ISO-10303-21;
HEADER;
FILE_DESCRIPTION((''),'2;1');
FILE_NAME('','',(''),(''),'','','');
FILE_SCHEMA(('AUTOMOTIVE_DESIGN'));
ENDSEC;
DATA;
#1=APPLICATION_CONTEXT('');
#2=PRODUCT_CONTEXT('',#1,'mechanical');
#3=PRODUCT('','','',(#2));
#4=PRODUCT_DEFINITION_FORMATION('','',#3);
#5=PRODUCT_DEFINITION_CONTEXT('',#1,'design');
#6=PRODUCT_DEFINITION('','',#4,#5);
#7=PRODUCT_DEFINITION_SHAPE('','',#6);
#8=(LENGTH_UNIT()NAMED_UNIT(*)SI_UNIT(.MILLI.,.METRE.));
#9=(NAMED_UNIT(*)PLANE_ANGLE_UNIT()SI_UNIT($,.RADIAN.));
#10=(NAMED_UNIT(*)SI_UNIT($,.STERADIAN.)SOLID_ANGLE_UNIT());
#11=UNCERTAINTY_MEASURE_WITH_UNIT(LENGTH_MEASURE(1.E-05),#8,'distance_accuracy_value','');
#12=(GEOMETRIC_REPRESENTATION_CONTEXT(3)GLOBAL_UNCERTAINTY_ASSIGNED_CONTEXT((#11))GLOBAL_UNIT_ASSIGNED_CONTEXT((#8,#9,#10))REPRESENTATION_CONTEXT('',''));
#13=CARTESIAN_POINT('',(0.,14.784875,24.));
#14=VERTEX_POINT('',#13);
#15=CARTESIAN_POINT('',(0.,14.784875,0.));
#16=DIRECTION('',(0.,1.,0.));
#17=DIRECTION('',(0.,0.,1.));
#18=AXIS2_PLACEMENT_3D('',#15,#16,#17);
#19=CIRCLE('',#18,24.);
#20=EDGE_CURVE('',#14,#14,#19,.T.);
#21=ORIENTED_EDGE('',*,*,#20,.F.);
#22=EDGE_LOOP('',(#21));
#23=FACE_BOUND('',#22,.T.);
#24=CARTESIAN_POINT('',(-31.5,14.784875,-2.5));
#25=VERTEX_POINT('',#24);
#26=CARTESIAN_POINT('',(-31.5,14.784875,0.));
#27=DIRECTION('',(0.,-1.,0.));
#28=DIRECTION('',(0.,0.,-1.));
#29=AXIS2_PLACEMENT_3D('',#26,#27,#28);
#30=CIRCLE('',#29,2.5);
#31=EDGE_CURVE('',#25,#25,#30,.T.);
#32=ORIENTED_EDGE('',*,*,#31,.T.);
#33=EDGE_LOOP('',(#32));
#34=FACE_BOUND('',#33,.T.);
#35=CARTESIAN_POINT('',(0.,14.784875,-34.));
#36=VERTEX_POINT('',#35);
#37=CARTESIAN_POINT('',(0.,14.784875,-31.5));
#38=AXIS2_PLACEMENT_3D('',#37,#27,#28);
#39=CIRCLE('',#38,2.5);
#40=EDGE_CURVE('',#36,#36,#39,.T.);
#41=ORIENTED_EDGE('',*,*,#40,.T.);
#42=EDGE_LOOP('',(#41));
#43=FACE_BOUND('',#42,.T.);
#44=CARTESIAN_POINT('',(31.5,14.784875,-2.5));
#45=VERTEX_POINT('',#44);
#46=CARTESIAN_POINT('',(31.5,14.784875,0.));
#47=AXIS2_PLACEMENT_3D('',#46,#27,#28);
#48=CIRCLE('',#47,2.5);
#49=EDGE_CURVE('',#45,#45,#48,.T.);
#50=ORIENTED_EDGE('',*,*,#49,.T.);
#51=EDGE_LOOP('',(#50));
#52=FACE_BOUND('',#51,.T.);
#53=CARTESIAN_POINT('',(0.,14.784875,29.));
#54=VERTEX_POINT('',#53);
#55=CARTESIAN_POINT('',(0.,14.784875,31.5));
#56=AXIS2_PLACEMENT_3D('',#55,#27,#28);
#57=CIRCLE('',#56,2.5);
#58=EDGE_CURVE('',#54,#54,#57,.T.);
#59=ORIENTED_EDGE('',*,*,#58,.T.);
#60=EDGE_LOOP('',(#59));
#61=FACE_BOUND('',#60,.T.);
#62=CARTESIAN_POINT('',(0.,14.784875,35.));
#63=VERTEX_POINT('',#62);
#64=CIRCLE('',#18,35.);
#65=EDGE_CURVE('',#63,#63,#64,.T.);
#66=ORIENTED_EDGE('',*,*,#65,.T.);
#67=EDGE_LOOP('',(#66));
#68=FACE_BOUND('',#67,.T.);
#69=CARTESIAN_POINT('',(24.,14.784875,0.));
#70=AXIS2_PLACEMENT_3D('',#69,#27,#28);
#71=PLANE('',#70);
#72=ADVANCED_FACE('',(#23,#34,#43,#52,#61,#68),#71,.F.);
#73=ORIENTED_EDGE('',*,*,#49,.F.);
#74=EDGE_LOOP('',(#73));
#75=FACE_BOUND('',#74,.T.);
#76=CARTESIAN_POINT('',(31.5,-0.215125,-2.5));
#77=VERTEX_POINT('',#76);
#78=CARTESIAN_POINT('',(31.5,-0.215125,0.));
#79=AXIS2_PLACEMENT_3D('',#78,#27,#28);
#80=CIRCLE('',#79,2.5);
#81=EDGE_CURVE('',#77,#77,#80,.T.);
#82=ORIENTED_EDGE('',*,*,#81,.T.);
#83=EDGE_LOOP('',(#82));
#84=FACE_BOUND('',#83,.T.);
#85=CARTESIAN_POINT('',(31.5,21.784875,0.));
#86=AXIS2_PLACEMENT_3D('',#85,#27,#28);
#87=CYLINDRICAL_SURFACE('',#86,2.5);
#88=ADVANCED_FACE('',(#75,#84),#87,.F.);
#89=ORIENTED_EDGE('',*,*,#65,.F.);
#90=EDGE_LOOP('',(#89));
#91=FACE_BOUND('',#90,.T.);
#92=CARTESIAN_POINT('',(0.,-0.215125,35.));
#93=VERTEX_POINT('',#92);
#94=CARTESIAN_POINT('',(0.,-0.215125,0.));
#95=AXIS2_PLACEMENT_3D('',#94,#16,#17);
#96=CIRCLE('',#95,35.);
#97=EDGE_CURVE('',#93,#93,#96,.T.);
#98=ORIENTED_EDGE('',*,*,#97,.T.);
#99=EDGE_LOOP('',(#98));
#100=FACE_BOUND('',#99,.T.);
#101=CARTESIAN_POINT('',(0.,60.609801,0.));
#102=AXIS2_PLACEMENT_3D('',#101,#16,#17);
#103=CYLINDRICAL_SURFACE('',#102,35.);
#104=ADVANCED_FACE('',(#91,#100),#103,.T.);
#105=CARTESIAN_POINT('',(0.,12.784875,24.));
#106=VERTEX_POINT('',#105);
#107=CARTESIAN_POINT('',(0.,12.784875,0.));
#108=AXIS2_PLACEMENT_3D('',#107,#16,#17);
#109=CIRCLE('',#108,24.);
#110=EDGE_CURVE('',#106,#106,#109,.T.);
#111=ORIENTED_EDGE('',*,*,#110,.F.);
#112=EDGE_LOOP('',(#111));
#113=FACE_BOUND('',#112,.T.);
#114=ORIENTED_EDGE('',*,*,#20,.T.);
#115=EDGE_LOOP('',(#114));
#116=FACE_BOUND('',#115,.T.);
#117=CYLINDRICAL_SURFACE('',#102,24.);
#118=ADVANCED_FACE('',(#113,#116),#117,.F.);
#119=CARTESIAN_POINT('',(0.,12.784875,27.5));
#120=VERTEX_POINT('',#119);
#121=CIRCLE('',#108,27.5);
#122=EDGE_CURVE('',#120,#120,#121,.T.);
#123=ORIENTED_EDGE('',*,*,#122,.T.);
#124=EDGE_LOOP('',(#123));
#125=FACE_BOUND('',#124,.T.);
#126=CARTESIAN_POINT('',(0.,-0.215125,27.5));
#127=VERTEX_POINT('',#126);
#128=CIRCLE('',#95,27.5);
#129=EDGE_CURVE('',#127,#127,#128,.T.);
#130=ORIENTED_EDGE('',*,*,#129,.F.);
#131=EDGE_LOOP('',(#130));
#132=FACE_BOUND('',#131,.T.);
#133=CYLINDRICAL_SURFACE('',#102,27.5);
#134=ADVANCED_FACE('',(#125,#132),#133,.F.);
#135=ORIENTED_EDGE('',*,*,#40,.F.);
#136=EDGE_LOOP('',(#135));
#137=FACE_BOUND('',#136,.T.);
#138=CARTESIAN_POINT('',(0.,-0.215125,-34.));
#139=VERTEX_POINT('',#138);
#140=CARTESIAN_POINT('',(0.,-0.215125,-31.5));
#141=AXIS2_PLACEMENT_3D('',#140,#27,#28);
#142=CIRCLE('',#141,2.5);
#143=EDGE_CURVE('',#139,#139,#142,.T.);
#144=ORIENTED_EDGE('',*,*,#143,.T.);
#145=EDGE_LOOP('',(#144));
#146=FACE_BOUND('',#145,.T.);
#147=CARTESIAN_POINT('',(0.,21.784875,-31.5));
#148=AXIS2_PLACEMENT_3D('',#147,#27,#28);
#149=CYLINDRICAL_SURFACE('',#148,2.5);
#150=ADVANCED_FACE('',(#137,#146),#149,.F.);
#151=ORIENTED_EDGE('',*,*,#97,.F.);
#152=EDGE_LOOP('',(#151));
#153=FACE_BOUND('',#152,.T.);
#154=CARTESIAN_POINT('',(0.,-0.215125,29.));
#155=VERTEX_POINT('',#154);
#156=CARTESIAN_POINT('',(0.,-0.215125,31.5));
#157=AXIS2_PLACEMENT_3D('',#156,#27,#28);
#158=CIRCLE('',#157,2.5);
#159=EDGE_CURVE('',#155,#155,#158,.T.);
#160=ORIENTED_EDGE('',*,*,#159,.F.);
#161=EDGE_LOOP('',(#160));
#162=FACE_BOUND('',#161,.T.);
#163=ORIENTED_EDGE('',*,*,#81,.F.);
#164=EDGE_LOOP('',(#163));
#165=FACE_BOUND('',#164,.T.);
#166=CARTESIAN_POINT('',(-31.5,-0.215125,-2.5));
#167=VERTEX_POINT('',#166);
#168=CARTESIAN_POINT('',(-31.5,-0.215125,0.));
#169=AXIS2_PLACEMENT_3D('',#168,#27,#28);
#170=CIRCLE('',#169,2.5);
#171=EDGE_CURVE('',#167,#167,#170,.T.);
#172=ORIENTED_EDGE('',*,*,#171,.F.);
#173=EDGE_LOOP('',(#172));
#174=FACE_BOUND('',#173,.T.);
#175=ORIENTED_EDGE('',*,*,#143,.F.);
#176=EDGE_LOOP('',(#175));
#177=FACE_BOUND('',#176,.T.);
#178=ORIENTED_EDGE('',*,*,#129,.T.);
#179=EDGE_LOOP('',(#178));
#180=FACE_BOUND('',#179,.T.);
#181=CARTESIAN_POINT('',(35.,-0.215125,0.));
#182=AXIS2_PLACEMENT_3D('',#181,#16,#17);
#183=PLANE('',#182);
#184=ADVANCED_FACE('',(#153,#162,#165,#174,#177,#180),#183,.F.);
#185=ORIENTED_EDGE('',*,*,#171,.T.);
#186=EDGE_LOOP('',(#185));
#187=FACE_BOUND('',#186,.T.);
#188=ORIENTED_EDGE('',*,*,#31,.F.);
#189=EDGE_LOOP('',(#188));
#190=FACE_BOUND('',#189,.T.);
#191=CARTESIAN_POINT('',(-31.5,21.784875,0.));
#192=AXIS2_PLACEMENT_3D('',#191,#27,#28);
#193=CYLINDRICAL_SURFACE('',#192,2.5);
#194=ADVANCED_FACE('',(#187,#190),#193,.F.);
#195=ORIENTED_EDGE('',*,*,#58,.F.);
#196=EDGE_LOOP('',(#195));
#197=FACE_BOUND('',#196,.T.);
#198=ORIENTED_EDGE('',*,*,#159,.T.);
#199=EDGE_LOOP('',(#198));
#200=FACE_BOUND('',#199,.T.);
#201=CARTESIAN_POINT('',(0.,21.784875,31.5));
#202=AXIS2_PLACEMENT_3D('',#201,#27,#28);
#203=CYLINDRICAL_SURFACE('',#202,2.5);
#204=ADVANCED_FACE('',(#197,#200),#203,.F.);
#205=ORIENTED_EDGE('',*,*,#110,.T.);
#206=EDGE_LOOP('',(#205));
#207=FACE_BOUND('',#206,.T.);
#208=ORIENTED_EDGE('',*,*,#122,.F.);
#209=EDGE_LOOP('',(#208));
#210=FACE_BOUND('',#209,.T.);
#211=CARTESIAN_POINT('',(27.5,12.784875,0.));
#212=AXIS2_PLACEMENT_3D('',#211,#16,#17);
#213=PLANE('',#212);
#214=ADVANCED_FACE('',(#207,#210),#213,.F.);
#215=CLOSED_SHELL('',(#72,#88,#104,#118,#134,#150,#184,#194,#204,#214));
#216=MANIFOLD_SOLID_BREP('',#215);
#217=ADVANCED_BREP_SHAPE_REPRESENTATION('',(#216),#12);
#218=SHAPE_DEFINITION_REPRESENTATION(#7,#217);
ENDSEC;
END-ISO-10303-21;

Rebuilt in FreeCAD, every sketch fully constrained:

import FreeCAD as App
import Part
import Sketcher
from FreeCAD import Vector

doc = App.newDocument("Part")
params = doc.addObject("Spreadsheet::Sheet", "Params")
for row, (alias, value) in enumerate([
    ("sketch1_width", "11 mm"),
    ("sketch1_height", "2 mm"),
    ("sketch1_height2", "13 mm"),
    ("sketch1_width2", "3.5 mm"),
    ("revolution_angle", "360 deg"),
    ("sketch2_diameter", "5 mm"),
    ("pocket1_length", "22 mm"),
], start=1):
    params.set(f"A{row}", alias)
    params.set(f"B{row}", "=" + value)
    params.setAlias(f"B{row}", alias)

body = doc.addObject("PartDesign::Body", "Body")

sketch1 = doc.addObject("Sketcher::SketchObject", "Sketch")
body.addObject(sketch1)
sketch1.AttachmentSupport = (doc.XY_Plane, [""])
sketch1.MapMode = "FlatFace"
sketch1.addGeometry([
    Part.LineSegment(Vector(35, 14.784875, 0), Vector(24, 14.784875, 0)),
    Part.LineSegment(Vector(24, 14.784875, 0), Vector(24, 12.784875, 0)),
    Part.LineSegment(Vector(24, 12.784875, 0), Vector(27.5, 12.784875, 0)),
    Part.LineSegment(Vector(27.5, 12.784875, 0), Vector(27.5, -0.215125, 0)),
    Part.LineSegment(Vector(27.5, -0.215125, 0), Vector(35, -0.215125, 0)),
    Part.LineSegment(Vector(35, -0.215125, 0), Vector(35, 14.784875, 0)),
], False)
sketch1.addConstraint([
    Sketcher.Constraint("Coincident", 0, 2, 1, 1),
    Sketcher.Constraint("Coincident", 1, 2, 2, 1),
    Sketcher.Constraint("Coincident", 2, 2, 3, 1),
    Sketcher.Constraint("Coincident", 3, 2, 4, 1),
    Sketcher.Constraint("Coincident", 4, 2, 5, 1),
    Sketcher.Constraint("Coincident", 5, 2, 0, 1),
    Sketcher.Constraint("Horizontal", 0),
    Sketcher.Constraint("Vertical", 1),
    Sketcher.Constraint("Horizontal", 2),
    Sketcher.Constraint("Vertical", 3),
    Sketcher.Constraint("Horizontal", 4),
    Sketcher.Constraint("Vertical", 5),
    Sketcher.Constraint("DistanceX", 0, 2, 0, 1, 11.0),
    Sketcher.Constraint("DistanceY", 1, 2, 1, 1, 2.0),
    Sketcher.Constraint("DistanceY", 3, 2, 3, 1, 13.0),
    Sketcher.Constraint("DistanceX", 2, 1, 2, 2, 3.5),
    Sketcher.Constraint("DistanceX", -1, 1, 0, 2, 24.0),
    Sketcher.Constraint("DistanceY", -1, 1, 0, 2, 14.784875),
])
sketch1.setExpression("Constraints[12]", "Params.sketch1_width")
sketch1.setExpression("Constraints[13]", "Params.sketch1_height")
sketch1.setExpression("Constraints[14]", "Params.sketch1_height2")
sketch1.setExpression("Constraints[15]", "Params.sketch1_width2")
revolution = doc.addObject("PartDesign::Revolution", "Revolution")
body.addObject(revolution)
revolution.Profile = sketch1
revolution.ReferenceAxis = (sketch1, ["V_Axis"])
revolution.setExpression("Angle", "Params.revolution_angle")

sketch2 = doc.addObject("Sketcher::SketchObject", "Sketch001")
body.addObject(sketch2)
sketch2.AttachmentSupport = (doc.XZ_Plane, [""])
sketch2.MapMode = "FlatFace"
sketch2.AttachmentOffset = App.Placement(Vector(0, 0, 0.215125), App.Rotation())
sketch2.addGeometry([
    Part.Circle(Vector(0, 31.5, 0), Vector(0, 0, 1), 2.5),
    Part.Circle(Vector(0, -31.5, 0), Vector(0, 0, 1), 2.5),
    Part.Circle(Vector(31.5, 0, 0), Vector(0, 0, 1), 2.5),
    Part.Circle(Vector(-31.5, 0, 0), Vector(0, 0, 1), 2.5),
], False)
sketch2.addConstraint([
    Sketcher.Constraint("Equal", 0, 1),
    Sketcher.Constraint("Equal", 1, 2),
    Sketcher.Constraint("Equal", 2, 3),
    Sketcher.Constraint("Symmetric", 0, 3, 1, 3, -1, 1),
    Sketcher.Constraint("Symmetric", 2, 3, 3, 3, -1, 1),
    Sketcher.Constraint("PointOnObject", 0, 3, -2),
    Sketcher.Constraint("PointOnObject", 2, 3, -1),
    Sketcher.Constraint("Diameter", 0, 5.0),
    Sketcher.Constraint("DistanceY", 1, 3, 0, 3, 63.0),
    Sketcher.Constraint("DistanceX", 3, 3, 2, 3, 63.0),
])
sketch2.setExpression("Constraints[7]", "Params.sketch2_diameter")
pocket1 = doc.addObject("PartDesign::Pocket", "Pocket")
body.addObject(pocket1)
pocket1.Profile = sketch2
pocket1.setExpression("Length", "Params.pocket1_length")

doc.recompute()
